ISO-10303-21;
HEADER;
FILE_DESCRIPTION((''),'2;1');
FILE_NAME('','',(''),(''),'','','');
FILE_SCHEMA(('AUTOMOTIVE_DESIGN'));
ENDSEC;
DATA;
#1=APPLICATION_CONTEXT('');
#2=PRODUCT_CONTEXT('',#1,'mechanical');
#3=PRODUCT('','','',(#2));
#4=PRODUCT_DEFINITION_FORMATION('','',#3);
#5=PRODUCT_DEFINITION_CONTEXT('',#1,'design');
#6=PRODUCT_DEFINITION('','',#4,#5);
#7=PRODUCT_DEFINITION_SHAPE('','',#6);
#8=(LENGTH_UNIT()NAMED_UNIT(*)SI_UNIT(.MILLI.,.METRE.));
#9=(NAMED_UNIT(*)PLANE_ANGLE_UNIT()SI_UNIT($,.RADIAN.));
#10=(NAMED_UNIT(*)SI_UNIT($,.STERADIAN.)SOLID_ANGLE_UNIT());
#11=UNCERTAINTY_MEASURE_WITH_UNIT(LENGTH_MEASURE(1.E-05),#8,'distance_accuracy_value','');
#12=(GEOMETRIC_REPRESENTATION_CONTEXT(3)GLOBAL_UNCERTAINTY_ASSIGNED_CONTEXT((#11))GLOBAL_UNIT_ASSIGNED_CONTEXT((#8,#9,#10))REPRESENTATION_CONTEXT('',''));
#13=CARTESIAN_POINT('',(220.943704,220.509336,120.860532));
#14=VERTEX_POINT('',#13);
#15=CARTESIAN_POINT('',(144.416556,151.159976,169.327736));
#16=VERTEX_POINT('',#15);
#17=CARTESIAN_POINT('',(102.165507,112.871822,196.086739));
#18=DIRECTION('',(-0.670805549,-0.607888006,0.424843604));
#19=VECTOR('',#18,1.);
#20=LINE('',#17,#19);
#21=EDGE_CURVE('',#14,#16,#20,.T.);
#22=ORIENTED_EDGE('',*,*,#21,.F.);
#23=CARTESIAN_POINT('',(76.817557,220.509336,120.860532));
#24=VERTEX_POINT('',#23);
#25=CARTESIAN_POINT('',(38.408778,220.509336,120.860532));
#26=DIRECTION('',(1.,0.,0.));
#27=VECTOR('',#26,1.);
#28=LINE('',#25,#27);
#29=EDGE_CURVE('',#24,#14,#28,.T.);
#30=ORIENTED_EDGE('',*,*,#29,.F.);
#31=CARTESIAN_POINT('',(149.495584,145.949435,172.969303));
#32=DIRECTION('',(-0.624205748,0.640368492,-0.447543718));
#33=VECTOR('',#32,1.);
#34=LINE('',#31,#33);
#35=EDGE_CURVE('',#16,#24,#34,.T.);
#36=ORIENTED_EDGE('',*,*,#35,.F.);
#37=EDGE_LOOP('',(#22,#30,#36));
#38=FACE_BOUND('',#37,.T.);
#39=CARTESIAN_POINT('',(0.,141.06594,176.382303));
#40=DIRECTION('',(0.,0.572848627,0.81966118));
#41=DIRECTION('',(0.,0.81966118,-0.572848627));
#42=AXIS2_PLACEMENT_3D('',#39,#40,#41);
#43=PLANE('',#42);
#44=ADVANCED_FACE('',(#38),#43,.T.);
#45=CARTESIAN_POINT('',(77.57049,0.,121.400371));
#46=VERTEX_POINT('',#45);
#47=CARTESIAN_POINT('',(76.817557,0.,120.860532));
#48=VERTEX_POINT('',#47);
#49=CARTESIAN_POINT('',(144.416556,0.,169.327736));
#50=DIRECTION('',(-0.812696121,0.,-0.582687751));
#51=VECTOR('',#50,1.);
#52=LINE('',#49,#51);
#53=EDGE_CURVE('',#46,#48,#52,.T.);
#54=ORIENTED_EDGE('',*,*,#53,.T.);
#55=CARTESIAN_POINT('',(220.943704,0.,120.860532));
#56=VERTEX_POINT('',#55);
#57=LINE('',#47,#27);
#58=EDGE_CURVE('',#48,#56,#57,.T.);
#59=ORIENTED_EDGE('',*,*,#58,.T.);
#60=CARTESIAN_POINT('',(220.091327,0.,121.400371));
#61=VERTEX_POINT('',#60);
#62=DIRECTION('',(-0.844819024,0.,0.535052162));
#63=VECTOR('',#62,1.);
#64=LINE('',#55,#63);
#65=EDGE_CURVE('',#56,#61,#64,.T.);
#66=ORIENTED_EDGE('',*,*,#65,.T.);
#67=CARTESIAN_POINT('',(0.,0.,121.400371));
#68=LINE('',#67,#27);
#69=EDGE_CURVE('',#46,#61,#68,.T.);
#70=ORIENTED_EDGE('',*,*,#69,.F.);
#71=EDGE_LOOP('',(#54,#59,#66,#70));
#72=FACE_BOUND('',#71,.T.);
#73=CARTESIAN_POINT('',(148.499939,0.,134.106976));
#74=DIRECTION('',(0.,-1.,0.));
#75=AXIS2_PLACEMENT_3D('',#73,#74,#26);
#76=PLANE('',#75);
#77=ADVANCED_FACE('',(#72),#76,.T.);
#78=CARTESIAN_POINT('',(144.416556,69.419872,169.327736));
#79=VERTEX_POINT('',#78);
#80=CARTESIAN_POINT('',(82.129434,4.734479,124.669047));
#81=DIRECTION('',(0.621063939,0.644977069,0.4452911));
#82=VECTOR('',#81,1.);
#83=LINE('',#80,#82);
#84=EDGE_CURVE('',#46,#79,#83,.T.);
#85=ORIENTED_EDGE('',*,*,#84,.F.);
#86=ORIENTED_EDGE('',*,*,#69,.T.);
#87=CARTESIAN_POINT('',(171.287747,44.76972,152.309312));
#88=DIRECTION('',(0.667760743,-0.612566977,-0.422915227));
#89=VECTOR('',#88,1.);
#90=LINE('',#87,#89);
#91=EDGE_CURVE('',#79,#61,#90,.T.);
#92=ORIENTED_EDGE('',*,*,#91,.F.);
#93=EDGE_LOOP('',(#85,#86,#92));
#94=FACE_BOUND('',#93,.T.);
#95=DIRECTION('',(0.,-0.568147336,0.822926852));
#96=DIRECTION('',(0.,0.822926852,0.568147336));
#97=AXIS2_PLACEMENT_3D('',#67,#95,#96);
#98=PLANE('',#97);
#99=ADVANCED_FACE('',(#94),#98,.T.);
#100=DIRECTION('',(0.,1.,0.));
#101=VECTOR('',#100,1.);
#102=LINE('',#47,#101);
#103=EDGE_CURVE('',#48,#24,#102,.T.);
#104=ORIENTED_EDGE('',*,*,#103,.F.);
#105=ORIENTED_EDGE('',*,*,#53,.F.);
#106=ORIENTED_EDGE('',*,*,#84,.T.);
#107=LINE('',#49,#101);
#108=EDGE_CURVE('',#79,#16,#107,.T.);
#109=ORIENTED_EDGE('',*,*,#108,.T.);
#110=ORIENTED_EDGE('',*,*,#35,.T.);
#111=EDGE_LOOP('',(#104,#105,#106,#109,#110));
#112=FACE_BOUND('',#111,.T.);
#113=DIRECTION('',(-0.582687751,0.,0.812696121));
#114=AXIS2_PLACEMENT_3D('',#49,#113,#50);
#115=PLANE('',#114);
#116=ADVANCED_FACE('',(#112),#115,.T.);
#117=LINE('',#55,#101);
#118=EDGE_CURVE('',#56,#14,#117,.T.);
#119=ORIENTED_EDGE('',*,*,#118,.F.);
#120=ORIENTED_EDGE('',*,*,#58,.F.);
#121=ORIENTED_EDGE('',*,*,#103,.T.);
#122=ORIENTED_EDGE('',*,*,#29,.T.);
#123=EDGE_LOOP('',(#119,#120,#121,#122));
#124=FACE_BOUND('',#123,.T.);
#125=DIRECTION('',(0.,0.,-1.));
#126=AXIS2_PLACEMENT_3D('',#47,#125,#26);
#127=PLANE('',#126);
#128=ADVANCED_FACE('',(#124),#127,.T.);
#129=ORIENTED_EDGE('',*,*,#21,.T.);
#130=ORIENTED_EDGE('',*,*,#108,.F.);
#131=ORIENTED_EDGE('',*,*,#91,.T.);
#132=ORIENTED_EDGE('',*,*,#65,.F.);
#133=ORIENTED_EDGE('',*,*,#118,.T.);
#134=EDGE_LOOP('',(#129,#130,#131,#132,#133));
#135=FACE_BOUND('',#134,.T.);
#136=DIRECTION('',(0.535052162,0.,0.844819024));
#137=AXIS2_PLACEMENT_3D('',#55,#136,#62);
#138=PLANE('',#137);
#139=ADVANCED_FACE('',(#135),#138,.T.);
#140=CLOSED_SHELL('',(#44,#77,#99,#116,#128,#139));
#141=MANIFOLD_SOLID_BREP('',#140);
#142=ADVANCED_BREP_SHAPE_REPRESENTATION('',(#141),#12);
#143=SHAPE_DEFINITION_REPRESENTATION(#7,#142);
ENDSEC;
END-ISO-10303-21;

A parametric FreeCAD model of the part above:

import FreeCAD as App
import Part
import Sketcher
Q = App.Units.Quantity

doc = App.newDocument("Part")
body = doc.addObject("PartDesign::Body", "Body")

# Sketch on XZ plane
sketch1 = body.newObject("Sketcher::SketchObject", "Sketch")
sketch1.AttachmentSupport = (doc.getObject("XZ_Plane"), [""])
sketch1.MapMode = "FlatFace"
sketch1.addGeometry([
    Part.LineSegment(App.Vector(144, 169, 0), App.Vector(77, 121, 0)),
    Part.LineSegment(App.Vector(77, 121, 0), App.Vector(221, 121, 0)),
    Part.LineSegment(App.Vector(221, 121, 0), App.Vector(144, 169, 0)),
], False)
sketch1.addConstraint([
    Sketcher.Constraint("Coincident", 0, 2, 1, 1),
    Sketcher.Constraint("Coincident", 1, 2, 2, 1),
    Sketcher.Constraint("Coincident", 2, 2, 0, 1),
    Sketcher.Constraint("Horizontal", 1),
    Sketcher.Constraint("DistanceX", 0, 2, 2, 2, Q("67.598999 mm")),
    Sketcher.Constraint("Distance", 0, Q("83.17869 mm")),
    Sketcher.Constraint("DistanceX", 1, 1, 1, 2, Q("144.126147 mm")),
    Sketcher.Constraint("DistanceX", -1, 1, 0, 2, Q("76.817557 mm")),
    Sketcher.Constraint("DistanceY", -1, 1, 0, 2, Q("120.860532 mm")),
])
pad1 = body.newObject("PartDesign::Pad", "Pad")
pad1.Profile = sketch1
pad1.Length = Q("8.72 in")
pad1.Reversed = True

# Sketch on YZ plane
sketch2 = body.newObject("Sketcher::SketchObject", "Sketch001")
sketch2.AttachmentSupport = (doc.getObject("YZ_Plane"), [""])
sketch2.MapMode = "FlatFace"
sketch2.addGeometry([
    Part.LineSegment(App.Vector(-13, 116, 0), App.Vector(0, 121, 0)),
    Part.LineSegment(App.Vector(0, 121, 0), App.Vector(79, 176, 0)),
    Part.LineSegment(App.Vector(79, 176, 0), App.Vector(-13, 176, 0)),
    Part.LineSegment(App.Vector(-13, 176, 0), App.Vector(-13, 116, 0)),
], False)
sketch2.addConstraint([
    Sketcher.Constraint("Coincident", 0, 2, 1, 1),
    Sketcher.Constraint("Coincident", 1, 2, 2, 1),
    Sketcher.Constraint("Coincident", 2, 2, 3, 1),
    Sketcher.Constraint("Coincident", 3, 2, 0, 1),
    Sketcher.Constraint("Horizontal", 2),
    Sketcher.Constraint("Vertical", 3),
    Sketcher.Constraint("PointOnObject", 0, 2, -2),
    Sketcher.Constraint("DistanceX", 2, 2, 2, 1, Q("91.941992 mm")),
    Sketcher.Constraint("DistanceY", 3, 2, 3, 1, Q("60.174658 mm")),
    Sketcher.Constraint("DistanceY", -1, 1, 0, 2, Q("121.400371 mm")),
    Sketcher.Constraint("Distance", 0, Q("14.409337 mm")),
    Sketcher.Constraint("Distance", 1, Q("95.698792 mm")),
])
pocket1 = body.newObject("PartDesign::Pocket", "Pocket")
pocket1.Profile = sketch2
pocket1.Length = Q("15.11 in")
pocket1.Reversed = True

# Sketch on YZ plane
sketch3 = body.newObject("Sketcher::SketchObject", "Sketch002")
sketch3.AttachmentSupport = (doc.getObject("YZ_Plane"), [""])
sketch3.MapMode = "FlatFace"
sketch3.addGeometry([
    Part.LineSegment(App.Vector(141, 176, 0), App.Vector(223, 119, 0)),
    Part.LineSegment(App.Vector(223, 119, 0), App.Vector(241, 93, 0)),
    Part.LineSegment(App.Vector(241, 93, 0), App.Vector(241, 179, 0)),
    Part.LineSegment(App.Vector(241, 179, 0), App.Vector(141, 176, 0)),
], False)
sketch3.addConstraint([
    Sketcher.Constraint("Coincident", 0, 2, 1, 1),
    Sketcher.Constraint("Coincident", 1, 2, 2, 1),
    Sketcher.Constraint("Coincident", 2, 2, 3, 1),
    Sketcher.Constraint("Coincident", 3, 2, 0, 1),
    Sketcher.Constraint("Vertical", 2),
    Sketcher.Constraint("DistanceY", -1, 1, 1, 2, Q("92.687599 mm")),
    Sketcher.Constraint("DistanceY", 3, 2, 2, 2, Q("2.749101 mm")),
    Sketcher.Constraint("Distance", 1, Q("31.856792 mm")),
    Sketcher.Constraint("DistanceY", 2, 1, 2, 2, Q("86.443805 mm")),
    Sketcher.Constraint("DistanceX", -1, 1, 0, 2, Q("223.233372 mm")),
    Sketcher.Constraint("DistanceX", -1, 1, 3, 2, Q("141.06594 mm")),
    Sketcher.Constraint("DistanceX", 0, 2, 1, 2, Q("18.021852 mm")),
])
pocket2 = body.newObject("PartDesign::Pocket", "Pocket001")
pocket2.Profile = sketch3
pocket2.Length = Q("15.16 in")
pocket2.Reversed = True

doc.recompute()
